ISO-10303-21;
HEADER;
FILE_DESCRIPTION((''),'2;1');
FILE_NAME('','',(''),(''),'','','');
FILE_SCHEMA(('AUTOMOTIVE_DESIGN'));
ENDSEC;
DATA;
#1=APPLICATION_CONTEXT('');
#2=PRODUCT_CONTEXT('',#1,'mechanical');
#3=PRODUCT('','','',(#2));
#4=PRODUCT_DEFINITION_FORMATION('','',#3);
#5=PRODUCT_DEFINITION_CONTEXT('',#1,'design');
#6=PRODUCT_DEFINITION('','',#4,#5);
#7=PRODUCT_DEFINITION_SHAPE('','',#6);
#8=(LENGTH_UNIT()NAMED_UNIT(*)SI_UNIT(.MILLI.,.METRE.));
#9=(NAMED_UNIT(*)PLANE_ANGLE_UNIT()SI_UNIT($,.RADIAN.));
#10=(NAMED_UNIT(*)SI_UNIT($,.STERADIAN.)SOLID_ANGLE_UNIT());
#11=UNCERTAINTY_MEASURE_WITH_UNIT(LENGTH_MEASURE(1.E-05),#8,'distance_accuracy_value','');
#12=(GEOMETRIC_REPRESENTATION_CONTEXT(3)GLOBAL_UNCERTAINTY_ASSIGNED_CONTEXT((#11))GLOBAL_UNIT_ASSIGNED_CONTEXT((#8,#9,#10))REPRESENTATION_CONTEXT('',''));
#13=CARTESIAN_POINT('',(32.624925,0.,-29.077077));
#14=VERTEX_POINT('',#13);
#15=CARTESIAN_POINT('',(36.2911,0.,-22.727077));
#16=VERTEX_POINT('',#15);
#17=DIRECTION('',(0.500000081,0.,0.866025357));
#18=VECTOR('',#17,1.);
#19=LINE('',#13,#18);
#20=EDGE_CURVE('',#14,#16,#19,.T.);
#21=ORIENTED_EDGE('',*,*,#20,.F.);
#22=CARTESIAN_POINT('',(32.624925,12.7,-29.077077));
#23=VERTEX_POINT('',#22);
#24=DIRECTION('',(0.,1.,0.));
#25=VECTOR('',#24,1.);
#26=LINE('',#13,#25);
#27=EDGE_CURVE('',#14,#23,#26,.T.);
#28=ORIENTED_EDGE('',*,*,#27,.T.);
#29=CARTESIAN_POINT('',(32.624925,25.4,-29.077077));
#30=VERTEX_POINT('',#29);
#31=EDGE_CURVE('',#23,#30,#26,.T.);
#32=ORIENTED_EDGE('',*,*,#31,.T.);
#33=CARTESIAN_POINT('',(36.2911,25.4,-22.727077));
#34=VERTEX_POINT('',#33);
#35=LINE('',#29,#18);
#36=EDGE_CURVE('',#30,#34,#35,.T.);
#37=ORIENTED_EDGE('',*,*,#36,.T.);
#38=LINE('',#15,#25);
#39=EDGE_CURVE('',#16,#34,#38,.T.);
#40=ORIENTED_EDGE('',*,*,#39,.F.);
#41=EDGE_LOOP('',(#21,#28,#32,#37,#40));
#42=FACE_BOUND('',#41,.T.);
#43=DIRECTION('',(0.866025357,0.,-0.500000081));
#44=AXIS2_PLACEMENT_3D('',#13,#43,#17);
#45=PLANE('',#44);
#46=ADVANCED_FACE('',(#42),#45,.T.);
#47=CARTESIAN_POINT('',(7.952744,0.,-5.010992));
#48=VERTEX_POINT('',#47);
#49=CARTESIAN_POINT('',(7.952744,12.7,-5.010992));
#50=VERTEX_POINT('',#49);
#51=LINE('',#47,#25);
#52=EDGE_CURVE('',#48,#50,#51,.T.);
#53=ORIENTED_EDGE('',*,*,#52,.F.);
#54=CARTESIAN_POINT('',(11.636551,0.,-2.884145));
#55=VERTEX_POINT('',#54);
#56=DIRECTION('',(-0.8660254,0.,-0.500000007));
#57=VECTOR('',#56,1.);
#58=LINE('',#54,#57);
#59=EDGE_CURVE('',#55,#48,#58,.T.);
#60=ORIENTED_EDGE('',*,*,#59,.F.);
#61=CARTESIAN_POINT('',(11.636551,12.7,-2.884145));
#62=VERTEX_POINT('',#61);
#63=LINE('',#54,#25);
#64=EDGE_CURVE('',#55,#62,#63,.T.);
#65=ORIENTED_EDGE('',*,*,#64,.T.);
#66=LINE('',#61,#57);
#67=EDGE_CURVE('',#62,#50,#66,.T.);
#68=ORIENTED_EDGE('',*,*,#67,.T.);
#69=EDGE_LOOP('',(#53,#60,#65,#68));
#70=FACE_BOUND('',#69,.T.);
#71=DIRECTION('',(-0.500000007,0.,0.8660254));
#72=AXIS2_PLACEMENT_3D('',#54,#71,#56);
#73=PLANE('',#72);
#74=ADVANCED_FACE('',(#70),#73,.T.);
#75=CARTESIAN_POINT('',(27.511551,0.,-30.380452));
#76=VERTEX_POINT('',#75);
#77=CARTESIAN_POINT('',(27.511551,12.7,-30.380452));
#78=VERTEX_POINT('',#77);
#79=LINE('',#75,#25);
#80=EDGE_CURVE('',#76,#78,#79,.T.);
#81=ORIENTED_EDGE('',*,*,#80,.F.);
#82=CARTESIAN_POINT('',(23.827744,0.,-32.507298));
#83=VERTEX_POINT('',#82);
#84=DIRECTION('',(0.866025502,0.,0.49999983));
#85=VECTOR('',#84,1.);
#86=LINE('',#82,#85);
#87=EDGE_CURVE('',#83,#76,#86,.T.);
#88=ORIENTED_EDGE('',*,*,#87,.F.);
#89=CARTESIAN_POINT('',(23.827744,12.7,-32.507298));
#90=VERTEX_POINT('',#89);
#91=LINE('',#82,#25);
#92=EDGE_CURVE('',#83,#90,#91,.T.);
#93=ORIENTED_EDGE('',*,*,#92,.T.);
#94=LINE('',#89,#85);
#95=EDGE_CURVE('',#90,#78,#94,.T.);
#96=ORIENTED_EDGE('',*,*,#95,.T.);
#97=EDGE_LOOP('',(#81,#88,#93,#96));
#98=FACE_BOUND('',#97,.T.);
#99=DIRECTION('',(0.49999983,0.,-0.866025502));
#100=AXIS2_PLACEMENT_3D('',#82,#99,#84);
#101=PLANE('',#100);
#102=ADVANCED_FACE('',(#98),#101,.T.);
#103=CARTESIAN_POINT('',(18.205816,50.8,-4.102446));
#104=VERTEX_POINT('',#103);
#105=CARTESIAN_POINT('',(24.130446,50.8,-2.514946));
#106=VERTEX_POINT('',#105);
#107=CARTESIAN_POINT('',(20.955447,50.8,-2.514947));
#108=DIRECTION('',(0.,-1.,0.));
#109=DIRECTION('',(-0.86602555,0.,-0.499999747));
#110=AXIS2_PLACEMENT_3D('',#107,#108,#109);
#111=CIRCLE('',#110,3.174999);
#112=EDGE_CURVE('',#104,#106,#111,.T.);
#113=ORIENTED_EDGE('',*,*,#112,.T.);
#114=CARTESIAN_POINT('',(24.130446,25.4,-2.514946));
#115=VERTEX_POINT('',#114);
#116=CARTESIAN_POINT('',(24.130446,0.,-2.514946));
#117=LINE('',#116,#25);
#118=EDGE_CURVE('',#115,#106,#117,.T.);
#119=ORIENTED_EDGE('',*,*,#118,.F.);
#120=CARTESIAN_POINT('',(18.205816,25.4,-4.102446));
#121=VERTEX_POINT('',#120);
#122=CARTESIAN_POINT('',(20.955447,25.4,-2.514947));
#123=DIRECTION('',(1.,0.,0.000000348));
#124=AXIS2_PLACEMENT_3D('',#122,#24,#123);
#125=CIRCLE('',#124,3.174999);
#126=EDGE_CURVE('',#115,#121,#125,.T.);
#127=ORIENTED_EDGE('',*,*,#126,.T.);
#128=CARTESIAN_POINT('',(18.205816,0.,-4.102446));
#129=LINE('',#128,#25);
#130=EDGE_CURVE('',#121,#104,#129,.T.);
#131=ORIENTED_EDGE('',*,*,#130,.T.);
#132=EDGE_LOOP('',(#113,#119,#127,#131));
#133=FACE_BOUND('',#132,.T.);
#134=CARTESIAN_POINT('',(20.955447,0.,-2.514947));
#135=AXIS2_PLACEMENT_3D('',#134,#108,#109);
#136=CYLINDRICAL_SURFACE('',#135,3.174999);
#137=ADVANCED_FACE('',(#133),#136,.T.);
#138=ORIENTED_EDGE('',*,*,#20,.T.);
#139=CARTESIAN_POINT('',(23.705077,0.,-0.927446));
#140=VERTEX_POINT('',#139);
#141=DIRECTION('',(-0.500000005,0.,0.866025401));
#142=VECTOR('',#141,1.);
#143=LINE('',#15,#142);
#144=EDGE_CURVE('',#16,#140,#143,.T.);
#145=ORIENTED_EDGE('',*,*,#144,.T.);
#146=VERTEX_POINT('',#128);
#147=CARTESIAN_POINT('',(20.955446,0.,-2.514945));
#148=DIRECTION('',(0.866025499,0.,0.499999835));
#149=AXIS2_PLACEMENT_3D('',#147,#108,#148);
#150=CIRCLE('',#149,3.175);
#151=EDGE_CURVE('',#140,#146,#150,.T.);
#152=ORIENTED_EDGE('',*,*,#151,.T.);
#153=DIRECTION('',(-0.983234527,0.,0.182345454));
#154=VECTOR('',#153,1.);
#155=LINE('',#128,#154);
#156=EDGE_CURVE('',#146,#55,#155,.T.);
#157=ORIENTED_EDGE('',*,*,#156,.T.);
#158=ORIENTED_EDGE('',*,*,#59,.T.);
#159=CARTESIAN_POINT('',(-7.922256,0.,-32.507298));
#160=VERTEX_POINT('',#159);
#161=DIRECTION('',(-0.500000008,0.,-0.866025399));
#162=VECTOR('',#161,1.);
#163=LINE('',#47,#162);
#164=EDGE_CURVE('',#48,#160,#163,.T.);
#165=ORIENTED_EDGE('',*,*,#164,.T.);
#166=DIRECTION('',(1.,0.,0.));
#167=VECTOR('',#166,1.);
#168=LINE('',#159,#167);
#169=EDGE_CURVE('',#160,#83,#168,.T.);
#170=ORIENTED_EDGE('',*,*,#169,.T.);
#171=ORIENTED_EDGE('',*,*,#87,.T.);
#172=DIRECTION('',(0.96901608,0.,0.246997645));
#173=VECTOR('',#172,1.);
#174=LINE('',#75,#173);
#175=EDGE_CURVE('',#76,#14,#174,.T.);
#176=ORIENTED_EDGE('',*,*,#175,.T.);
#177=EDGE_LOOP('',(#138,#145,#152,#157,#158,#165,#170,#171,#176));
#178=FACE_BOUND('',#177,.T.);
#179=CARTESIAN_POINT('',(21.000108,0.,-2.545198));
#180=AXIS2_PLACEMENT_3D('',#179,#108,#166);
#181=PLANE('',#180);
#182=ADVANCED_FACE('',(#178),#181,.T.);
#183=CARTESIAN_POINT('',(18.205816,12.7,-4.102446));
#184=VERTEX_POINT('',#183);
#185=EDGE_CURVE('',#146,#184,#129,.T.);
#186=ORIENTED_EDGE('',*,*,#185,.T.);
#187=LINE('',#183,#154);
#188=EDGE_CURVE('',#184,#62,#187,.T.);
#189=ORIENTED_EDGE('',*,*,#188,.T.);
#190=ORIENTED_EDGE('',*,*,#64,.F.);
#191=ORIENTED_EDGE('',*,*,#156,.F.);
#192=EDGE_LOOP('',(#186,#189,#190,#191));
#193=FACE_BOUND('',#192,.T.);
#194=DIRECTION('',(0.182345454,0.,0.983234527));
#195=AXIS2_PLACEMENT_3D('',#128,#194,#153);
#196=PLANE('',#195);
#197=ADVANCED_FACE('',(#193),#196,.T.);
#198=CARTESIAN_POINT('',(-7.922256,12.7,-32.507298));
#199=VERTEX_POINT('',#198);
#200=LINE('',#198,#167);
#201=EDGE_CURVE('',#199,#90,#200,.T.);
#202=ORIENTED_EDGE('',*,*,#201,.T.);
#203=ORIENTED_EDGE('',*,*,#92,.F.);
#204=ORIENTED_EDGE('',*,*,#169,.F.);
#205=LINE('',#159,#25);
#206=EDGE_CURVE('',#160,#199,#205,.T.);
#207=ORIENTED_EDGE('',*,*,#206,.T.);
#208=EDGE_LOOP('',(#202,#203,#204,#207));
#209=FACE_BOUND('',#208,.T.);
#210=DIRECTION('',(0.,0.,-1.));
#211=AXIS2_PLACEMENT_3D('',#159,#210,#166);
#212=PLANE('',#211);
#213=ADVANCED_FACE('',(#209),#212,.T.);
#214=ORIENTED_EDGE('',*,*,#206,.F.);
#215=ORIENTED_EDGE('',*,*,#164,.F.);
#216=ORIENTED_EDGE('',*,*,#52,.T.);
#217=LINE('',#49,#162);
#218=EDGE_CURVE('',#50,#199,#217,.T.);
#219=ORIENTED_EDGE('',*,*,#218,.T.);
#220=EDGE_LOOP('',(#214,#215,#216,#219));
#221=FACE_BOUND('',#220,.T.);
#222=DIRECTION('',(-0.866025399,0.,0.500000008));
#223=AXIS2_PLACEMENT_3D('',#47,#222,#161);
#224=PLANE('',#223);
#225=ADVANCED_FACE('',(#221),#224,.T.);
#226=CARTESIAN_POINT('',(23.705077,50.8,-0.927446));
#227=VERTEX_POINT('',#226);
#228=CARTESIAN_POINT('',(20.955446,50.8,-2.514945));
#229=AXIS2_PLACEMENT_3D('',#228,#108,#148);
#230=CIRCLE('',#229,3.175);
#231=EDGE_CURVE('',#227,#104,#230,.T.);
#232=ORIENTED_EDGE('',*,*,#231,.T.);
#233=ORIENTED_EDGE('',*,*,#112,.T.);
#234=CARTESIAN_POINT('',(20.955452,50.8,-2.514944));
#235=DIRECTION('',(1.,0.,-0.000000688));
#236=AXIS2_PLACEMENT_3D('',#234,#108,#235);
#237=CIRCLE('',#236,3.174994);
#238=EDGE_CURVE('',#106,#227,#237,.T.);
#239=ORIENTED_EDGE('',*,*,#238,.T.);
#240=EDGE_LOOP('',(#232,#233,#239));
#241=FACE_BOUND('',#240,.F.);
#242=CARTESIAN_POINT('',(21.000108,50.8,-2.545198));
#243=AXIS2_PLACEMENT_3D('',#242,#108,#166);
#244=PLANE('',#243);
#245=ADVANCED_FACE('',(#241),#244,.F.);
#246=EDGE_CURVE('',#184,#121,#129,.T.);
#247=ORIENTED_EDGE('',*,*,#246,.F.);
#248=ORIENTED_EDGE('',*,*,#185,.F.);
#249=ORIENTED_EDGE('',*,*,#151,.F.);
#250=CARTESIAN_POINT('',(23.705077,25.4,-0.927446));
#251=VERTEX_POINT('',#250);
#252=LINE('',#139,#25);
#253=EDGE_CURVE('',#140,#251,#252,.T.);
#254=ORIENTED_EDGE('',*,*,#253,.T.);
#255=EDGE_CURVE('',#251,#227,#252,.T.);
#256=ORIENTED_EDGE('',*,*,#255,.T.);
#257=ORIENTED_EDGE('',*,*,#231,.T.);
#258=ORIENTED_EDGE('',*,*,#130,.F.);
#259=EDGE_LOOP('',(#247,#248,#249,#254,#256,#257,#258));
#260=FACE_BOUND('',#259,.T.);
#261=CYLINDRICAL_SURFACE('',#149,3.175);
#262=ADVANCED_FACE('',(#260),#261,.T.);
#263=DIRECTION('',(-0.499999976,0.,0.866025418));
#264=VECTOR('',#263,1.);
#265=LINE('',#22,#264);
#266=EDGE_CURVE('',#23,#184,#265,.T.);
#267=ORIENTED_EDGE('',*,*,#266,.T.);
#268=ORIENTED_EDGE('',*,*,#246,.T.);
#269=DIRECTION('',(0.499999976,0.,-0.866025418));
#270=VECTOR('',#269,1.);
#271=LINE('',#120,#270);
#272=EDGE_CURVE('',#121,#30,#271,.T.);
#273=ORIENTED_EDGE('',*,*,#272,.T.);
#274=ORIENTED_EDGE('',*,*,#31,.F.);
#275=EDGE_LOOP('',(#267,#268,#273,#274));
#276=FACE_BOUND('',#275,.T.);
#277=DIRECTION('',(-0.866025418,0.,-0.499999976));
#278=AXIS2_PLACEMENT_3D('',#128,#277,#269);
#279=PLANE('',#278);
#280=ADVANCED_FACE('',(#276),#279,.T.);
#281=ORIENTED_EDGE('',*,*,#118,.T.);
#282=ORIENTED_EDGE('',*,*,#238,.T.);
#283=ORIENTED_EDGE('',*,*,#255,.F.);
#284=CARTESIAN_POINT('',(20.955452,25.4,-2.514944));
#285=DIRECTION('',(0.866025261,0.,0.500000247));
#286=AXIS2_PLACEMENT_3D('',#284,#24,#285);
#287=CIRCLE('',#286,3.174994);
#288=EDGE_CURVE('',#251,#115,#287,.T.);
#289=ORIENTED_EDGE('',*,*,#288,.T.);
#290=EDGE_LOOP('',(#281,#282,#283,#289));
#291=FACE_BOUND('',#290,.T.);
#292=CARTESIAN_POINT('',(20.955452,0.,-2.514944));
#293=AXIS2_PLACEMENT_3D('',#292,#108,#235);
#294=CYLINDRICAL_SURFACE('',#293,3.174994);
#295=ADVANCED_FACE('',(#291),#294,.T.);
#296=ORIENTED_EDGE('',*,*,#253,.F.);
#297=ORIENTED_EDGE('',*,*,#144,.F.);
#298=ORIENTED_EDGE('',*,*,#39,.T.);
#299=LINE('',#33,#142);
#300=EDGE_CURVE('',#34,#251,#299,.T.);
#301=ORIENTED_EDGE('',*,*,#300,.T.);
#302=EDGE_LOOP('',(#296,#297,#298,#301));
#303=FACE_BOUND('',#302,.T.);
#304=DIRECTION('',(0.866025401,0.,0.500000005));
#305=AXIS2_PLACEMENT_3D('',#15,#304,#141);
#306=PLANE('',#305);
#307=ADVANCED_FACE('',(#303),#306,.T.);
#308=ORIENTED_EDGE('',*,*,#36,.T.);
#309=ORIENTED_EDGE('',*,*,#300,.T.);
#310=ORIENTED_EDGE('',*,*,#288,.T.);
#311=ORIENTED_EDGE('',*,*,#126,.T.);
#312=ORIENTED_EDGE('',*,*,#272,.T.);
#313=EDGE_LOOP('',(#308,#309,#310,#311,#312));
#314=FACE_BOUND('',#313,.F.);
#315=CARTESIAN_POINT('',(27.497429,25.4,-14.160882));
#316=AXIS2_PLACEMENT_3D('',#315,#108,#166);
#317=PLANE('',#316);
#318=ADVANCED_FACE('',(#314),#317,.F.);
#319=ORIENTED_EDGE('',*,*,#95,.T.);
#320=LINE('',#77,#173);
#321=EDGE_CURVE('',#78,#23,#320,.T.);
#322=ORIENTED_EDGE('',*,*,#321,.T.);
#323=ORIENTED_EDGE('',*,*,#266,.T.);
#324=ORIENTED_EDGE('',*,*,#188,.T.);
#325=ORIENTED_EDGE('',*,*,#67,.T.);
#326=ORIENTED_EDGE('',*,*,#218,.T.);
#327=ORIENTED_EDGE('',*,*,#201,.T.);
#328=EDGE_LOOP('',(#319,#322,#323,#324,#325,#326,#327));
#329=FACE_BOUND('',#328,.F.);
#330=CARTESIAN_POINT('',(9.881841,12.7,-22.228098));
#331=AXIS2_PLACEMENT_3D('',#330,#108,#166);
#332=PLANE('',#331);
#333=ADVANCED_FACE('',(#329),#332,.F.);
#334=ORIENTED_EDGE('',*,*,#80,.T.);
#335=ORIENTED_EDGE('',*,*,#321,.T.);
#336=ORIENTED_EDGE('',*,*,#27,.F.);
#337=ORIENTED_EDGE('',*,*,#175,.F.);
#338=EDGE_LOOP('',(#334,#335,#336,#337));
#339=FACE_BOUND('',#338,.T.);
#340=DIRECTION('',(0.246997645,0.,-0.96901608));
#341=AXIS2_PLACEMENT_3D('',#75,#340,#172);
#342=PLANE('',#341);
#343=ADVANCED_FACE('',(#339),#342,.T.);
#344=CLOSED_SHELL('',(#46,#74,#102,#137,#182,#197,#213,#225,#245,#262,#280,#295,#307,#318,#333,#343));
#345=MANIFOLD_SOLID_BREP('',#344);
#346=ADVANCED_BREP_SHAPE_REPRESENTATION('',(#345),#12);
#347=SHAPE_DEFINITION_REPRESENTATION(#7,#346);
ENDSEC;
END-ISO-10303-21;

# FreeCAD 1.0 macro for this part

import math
import FreeCAD as App
import Part
import Sketcher

V = App.Vector
Q = App.Units.Quantity


def add_polygon(sketch, points):
    """Adds a closed chain of lines whose ends are joined by coincident constraints."""
    first, n = sketch.GeometryCount, len(points)
    for a, b in zip(points, points[1:] + points[:1]):
        sketch.addGeometry(Part.LineSegment(App.Vector(*a, 0), App.Vector(*b, 0)), False)
    for i in range(n):
        sketch.addConstraint(Sketcher.Constraint("Coincident", first + i, 2, first + (i + 1) % n, 1))

doc = App.newDocument("Part")
params = doc.addObject("Spreadsheet::Sheet", "Params")
for row, (alias, value) in enumerate([
    ("sketch1_width", "1.25 in"),
    ("sketch1_length", "1.25 in"),
    ("pad1_length", "0.5 in"),
    ("sketch2_radius", "0.125 in"),
    ("pad2_length", "1 in"),
    ("sketch3_radius", "0.125 in"),
    ("sketch3_height", "0.0624999 in"),
    ("pad3_length", "2 in"),
], start=1):
    params.set(f"A{row}", alias)
    params.set(f"B{row}", "=" + value)
    params.setAlias(f"B{row}", alias)

body = doc.addObject("PartDesign::Body", "Body")

sketch1 = body.newObject("Sketcher::SketchObject", "Sketch")
sketch1.AttachmentSupport = (doc.getObject("XZ_Plane"), [""])
sketch1.MapMode = "FlatFace"
add_polygon(sketch1, [(23.827744, -32.507298), (27.511551, -30.380452), (32.624925, -29.077077), (18.205816, -4.102446), (11.636551, -2.884145), (7.952744, -5.010992), (-7.922256, -32.507298)])
sketch1.addConstraint([
    Sketcher.Constraint("Horizontal", 6),
    Sketcher.Constraint("Perpendicular", 0, 2),
    Sketcher.Constraint("Perpendicular", 2, 4),
    Sketcher.Constraint("Equal", 0, 4),
    Sketcher.Constraint("Angle", 0, Q("29.999989 deg")),
    Sketcher.Constraint("Angle", 5, Q("-120.000001 deg")),
    Sketcher.Constraint("DistanceX", 6, 1, 6, 2, Q("1.25 in")),
    Sketcher.Constraint("Distance", 5, Q("1.25 in")),
    Sketcher.Constraint("DistanceX", -1, 1, 4, 2, Q("0.3131002 in")),
    Sketcher.Constraint("DistanceY", 2, 2, 3, 2, 1.218301),
    Sketcher.Constraint("Distance", 2, 28.838219),
    Sketcher.Constraint("Distance", 3, 6.68128),
    Sketcher.Constraint("DistanceX", -1, 1, 0, 2, 27.511551),
    Sketcher.Constraint("DistanceY", 0, 2, -1, 1, 30.380452),
])
sketch1.setExpression("Constraints[13]", "Params.sketch1_width")
sketch1.setExpression("Constraints[14]", "Params.sketch1_length")
pad1 = body.newObject("PartDesign::Pad", "Pad")
pad1.Profile = sketch1
pad1.setExpression("Length", "Params.pad1_length")
pad1.Reversed = True

sketch2 = body.newObject("Sketcher::SketchObject", "Sketch001")
sketch2.AttachmentSupport = (doc.getObject("XZ_Plane"), [""])
sketch2.MapMode = "FlatFace"
sketch2.addGeometry([
    Part.LineSegment(V(32.624925, -29.077077, 0), V(36.2911, -22.727077, 0)),
    Part.LineSegment(V(36.2911, -22.727077, 0), V(23.705077, -0.927446, 0)),
    Part.ArcOfCircle(Part.Circle(V(20.955452, -2.514944, 0), V(0, 0, 1), 3.174994), math.radians(-0.000039), math.radians(30.000016)),
    Part.ArcOfCircle(Part.Circle(V(20.955447, -2.514947, 0), V(0, 0, 1), 3.174999), math.radians(-150.000017), math.radians(0.00002)),
    Part.LineSegment(V(18.205816, -4.102446, 0), V(32.624925, -29.077077, 0)),
], False)
sketch2.addConstraint([
    Sketcher.Constraint("Coincident", 0, 2, 1, 1),
    Sketcher.Constraint("Tangent", 1, 2, 2, 2),
    Sketcher.Constraint("Tangent", 2, 1, 3, 2),
    Sketcher.Constraint("Tangent", 3, 1, 4, 1),
    Sketcher.Constraint("Coincident", 4, 2, 0, 1),
    Sketcher.Constraint("Parallel", 1, 4),
    Sketcher.Constraint("Horizontal", 3, 3, 2, 1),
    Sketcher.Constraint("Angle", 0, Q("59.999995 deg")),
    Sketcher.Constraint("Angle", 1, Q("120 deg")),
    Sketcher.Constraint("Radius", 3, Q("0.125 in")),
    Sketcher.Constraint("DistanceY", 4, 2, 0, 2, Q("0.25 in")),
    Sketcher.Constraint("DistanceX", -1, 1, 0, 2, 36.2911),
    Sketcher.Constraint("Distance", 4, 28.838219),
    Sketcher.Constraint("DistanceY", 2, 3, -1, 1, 2.514944),
])
sketch2.setExpression("Constraints[9]", "Params.sketch2_radius")
pad2 = body.newObject("PartDesign::Pad", "Pad001")
pad2.Profile = sketch2
pad2.setExpression("Length", "Params.pad2_length")
pad2.Reversed = True

sketch3 = body.newObject("Sketcher::SketchObject", "Sketch002")
sketch3.AttachmentSupport = (doc.getObject("XZ_Plane"), [""])
sketch3.MapMode = "FlatFace"
sketch3.addGeometry([
    Part.ArcOfCircle(Part.Circle(V(20.955452, -2.514944, 0), V(0, 0, 1), 3.174994), math.radians(-0.000039), math.radians(30.000016)),
    Part.ArcOfCircle(Part.Circle(V(20.955446, -2.514945, 0), V(0, 0, 1), 3.175), math.radians(29.999989), math.radians(210.000014)),
    Part.ArcOfCircle(Part.Circle(V(20.955447, -2.514947, 0), V(0, 0, 1), 3.174999), math.radians(-150.000017), math.radians(0.00002)),
], False)
sketch3.addConstraint([
    Sketcher.Constraint("Tangent", 0, 2, 1, 1),
    Sketcher.Constraint("Tangent", 1, 2, 2, 1),
    Sketcher.Constraint("Tangent", 2, 2, 0, 1),
    Sketcher.Constraint("Horizontal", 1, 3, 2, 2),
    Sketcher.Constraint("Radius", 1, Q("0.125 in")),
    Sketcher.Constraint("DistanceY", 0, 3, 0, 2, Q("0.0624999 in")),
    Sketcher.Constraint("DistanceY", 1, 2, 2, 3, Q("0.0625 in")),
    Sketcher.Constraint("DistanceX", -1, 1, 0, 3, 20.955452),
    Sketcher.Constraint("DistanceY", 0, 3, -1, 1, 2.514944),
])
sketch3.setExpression("Constraints[4]", "Params.sketch3_radius")
sketch3.setExpression("Constraints[5]", "Params.sketch3_height")
pad3 = body.newObject("PartDesign::Pad", "Pad002")
pad3.Profile = sketch3
pad3.setExpression("Length", "Params.pad3_length")
pad3.Reversed = True

doc.recompute()
